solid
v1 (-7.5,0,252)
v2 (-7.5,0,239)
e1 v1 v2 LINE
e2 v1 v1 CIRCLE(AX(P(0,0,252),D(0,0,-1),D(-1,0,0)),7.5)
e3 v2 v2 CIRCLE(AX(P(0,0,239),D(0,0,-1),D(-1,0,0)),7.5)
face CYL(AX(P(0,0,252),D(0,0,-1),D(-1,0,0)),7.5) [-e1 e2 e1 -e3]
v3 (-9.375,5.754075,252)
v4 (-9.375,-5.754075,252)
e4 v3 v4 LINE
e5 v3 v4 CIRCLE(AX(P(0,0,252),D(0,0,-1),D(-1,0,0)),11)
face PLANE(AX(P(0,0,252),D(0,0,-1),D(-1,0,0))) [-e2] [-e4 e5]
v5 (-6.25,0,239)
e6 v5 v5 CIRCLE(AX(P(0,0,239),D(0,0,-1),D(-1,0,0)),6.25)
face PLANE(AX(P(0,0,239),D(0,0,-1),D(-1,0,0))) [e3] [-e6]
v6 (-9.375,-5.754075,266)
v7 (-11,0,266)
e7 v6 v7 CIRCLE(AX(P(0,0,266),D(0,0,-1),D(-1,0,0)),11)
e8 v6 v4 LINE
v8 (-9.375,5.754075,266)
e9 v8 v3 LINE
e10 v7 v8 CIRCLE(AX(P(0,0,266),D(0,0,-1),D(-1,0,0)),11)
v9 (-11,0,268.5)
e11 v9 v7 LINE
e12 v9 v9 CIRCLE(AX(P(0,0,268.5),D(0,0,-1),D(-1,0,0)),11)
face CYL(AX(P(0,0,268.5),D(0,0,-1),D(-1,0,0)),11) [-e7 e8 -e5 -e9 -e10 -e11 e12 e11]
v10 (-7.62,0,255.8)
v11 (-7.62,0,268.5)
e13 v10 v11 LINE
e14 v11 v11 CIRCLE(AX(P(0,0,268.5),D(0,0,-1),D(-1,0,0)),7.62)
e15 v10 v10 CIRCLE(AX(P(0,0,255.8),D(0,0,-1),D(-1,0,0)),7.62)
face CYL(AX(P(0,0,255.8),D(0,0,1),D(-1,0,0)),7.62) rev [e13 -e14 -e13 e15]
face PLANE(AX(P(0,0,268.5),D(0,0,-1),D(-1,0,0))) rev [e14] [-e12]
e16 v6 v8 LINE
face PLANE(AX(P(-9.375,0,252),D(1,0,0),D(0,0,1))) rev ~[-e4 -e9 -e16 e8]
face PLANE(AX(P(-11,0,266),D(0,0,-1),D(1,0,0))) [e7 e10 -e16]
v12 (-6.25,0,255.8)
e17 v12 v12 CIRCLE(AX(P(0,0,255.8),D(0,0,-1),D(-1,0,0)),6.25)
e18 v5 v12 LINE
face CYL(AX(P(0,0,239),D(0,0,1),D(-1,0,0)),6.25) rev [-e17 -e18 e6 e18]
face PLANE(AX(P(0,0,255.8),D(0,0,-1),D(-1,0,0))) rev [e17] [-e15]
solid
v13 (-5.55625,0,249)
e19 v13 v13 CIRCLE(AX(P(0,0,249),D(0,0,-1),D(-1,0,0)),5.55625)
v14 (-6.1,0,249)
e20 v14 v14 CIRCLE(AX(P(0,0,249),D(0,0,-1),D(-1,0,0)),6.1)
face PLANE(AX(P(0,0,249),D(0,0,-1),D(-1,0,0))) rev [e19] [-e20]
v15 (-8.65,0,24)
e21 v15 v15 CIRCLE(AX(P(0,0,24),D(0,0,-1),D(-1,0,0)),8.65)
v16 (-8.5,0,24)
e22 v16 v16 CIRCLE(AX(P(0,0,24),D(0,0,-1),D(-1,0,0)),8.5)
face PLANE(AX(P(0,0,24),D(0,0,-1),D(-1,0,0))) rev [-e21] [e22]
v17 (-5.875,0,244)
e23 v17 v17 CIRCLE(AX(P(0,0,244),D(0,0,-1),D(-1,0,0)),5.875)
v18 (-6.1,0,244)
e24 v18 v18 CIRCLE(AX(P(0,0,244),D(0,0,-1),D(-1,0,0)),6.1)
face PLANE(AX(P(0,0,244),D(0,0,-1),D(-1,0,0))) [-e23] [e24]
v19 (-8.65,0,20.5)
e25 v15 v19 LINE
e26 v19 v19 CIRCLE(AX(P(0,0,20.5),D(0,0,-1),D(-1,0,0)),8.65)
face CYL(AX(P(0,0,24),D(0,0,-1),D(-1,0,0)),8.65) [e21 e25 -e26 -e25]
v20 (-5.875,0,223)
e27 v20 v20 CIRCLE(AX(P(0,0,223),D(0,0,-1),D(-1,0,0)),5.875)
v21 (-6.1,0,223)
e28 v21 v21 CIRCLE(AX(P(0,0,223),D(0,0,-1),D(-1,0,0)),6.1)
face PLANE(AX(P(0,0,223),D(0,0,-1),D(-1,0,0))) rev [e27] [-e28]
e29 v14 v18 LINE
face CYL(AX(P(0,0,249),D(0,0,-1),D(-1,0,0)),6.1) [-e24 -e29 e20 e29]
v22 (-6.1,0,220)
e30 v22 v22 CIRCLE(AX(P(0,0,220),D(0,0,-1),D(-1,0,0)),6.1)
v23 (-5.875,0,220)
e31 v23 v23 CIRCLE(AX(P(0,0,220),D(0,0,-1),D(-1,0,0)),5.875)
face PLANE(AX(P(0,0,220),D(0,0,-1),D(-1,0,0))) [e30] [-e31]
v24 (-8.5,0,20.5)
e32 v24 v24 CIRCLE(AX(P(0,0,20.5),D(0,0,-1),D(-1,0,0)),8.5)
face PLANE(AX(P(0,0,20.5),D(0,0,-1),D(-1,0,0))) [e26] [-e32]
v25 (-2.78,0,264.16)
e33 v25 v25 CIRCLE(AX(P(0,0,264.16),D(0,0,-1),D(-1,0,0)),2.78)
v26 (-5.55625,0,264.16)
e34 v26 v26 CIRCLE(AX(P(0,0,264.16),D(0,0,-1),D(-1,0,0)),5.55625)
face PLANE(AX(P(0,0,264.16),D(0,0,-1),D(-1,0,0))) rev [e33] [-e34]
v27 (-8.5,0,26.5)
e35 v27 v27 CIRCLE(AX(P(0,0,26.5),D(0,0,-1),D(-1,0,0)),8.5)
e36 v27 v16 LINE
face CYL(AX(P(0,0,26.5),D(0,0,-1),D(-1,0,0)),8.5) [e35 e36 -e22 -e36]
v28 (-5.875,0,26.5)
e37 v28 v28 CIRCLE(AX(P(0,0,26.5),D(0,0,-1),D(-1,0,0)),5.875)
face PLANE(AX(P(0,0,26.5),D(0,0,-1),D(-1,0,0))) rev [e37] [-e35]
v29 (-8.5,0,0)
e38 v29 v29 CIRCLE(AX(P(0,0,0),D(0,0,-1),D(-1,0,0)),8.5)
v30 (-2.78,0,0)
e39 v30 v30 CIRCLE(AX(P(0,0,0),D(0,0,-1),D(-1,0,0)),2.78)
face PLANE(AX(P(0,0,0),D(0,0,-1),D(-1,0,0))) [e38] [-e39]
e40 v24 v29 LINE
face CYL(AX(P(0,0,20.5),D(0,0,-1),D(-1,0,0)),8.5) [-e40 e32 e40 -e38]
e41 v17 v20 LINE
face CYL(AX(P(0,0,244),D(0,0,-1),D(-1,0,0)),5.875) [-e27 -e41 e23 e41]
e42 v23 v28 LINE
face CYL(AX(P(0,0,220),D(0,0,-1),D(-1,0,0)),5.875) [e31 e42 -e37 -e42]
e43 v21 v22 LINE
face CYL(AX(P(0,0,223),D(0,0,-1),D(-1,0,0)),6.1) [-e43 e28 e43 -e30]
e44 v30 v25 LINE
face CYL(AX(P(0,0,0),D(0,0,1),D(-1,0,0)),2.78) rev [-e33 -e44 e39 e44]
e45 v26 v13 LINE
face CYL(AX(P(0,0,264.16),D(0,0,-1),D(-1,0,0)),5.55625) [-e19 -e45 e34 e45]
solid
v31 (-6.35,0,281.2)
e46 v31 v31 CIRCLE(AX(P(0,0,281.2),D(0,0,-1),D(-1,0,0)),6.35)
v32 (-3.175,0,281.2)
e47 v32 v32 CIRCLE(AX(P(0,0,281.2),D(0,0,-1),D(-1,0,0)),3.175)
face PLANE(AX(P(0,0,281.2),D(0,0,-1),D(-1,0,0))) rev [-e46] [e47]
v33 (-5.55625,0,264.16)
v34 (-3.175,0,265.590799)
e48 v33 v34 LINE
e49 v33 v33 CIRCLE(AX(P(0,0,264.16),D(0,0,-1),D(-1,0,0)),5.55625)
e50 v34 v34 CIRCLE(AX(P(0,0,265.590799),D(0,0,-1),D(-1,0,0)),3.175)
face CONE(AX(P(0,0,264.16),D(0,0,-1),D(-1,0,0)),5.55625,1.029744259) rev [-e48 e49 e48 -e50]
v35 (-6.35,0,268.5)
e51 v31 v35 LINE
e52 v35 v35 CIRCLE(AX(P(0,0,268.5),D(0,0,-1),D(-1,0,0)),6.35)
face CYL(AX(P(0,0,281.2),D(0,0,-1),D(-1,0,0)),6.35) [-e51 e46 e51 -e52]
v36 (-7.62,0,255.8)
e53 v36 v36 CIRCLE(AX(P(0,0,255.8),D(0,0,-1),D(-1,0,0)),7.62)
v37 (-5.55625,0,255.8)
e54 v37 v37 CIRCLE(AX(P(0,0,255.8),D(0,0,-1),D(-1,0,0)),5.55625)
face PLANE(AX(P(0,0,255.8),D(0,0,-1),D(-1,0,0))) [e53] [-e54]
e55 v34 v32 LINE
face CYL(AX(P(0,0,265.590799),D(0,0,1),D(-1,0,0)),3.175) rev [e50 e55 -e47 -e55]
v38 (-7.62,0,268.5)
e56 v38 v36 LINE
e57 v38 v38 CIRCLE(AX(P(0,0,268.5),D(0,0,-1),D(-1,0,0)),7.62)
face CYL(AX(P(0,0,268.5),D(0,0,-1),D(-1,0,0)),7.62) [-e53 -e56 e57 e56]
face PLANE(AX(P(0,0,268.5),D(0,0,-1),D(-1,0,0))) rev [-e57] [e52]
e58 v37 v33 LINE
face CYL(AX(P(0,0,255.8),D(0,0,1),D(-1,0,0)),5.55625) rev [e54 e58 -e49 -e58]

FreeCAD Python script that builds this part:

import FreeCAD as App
import Part
import Sketcher
Q = App.Units.Quantity


def add_polygon(sketch, points):
    """Adds a closed chain of lines whose ends are joined by coincident constraints."""
    first, n = sketch.GeometryCount, len(points)
    for a, b in zip(points, points[1:] + points[:1]):
        sketch.addGeometry(Part.LineSegment(App.Vector(*a, 0), App.Vector(*b, 0)), False)
    for i in range(n):
        sketch.addConstraint(Sketcher.Constraint("Coincident", first + i, 2, first + (i + 1) % n, 1))

doc = App.newDocument("Part")
body = doc.addObject("PartDesign::Body", "Body")

sketch1 = doc.addObject("Sketcher::SketchObject", "Sketch")
body.addObject(sketch1)
sketch1.AttachmentSupport = (doc.XZ_Plane, [""])
sketch1.MapMode = "FlatFace"
add_polygon(sketch1, [(-8.5, 0), (-2.78, 0), (-2.78, 264.16), (-5.56, 264.16), (-5.56, 249), (-6.1, 249), (-6.1, 244), (-5.88, 244), (-5.88, 223), (-6.1, 223), (-6.1, 220), (-5.88, 220), (-5.88, 26.5), (-8.5, 26.5), (-8.5, 24), (-8.65, 24), (-8.65, 20.5), (-8.5, 20.5)])
sketch1.addConstraint([
    Sketcher.Constraint("Horizontal", 0),
    Sketcher.Constraint("Vertical", 1),
    Sketcher.Constraint("Horizontal", 2),
    Sketcher.Constraint("Vertical", 3),
    Sketcher.Constraint("Horizontal", 4),
    Sketcher.Constraint("Vertical", 5),
    Sketcher.Constraint("Horizontal", 6),
    Sketcher.Constraint("Vertical", 7),
    Sketcher.Constraint("Horizontal", 8),
    Sketcher.Constraint("Vertical", 9),
    Sketcher.Constraint("Horizontal", 10),
    Sketcher.Constraint("Vertical", 11),
    Sketcher.Constraint("Horizontal", 12),
    Sketcher.Constraint("Vertical", 13),
    Sketcher.Constraint("Horizontal", 14),
    Sketcher.Constraint("Vertical", 15),
    Sketcher.Constraint("Horizontal", 16),
    Sketcher.Constraint("Vertical", 17),
    Sketcher.Constraint("PointOnObject", 0, 2, -1),
    Sketcher.Constraint("Vertical", 5, 2, 8, 2),
    Sketcher.Constraint("Vertical", 7, 2, 10, 2),
    Sketcher.Constraint("Vertical", 13, 2, 16, 2),
    Sketcher.Constraint("DistanceY", 5, 2, 5, 1, 5.0),
    Sketcher.Constraint("DistanceY", 7, 2, 7, 1, 21.0),
    Sketcher.Constraint("DistanceY", 9, 2, 9, 1, 3.0),
    Sketcher.Constraint("DistanceY", 11, 2, 11, 1, 193.5),
    Sketcher.Constraint("DistanceY", 13, 2, 13, 1, 2.5),
    Sketcher.Constraint("DistanceY", 15, 2, 15, 1, 3.5),
    Sketcher.Constraint("DistanceY", 17, 2, 17, 1, 20.5),
    Sketcher.Constraint("DistanceX", 0, 1, 0, 2, 5.72),
    Sketcher.Constraint("DistanceX", 14, 2, 14, 1, 0.15),
    Sketcher.Constraint("DistanceY", 1, 1, 1, 2, 264.16),
    Sketcher.Constraint("DistanceX", 4, 2, -1, 1, 6.1),
    Sketcher.Constraint("DistanceX", 12, 2, -1, 1, 8.5),
    Sketcher.Constraint("DistanceX", 6, 1, 6, 2, 0.225),
    Sketcher.Constraint("DistanceX", 2, 2, 2, 1, 2.77625),
])
revolution = doc.addObject("PartDesign::Revolution", "Revolution")
body.addObject(revolution)
revolution.Profile = sketch1
revolution.ReferenceAxis = (sketch1, ["V_Axis"])
revolution.Angle = 360
body2 = doc.addObject("PartDesign::Body", "Body001")

sketch2 = doc.addObject("Sketcher::SketchObject", "Sketch001")
body2.addObject(sketch2)
sketch2.AttachmentSupport = (doc.getObject("XZ_Plane001"), [""])
sketch2.MapMode = "FlatFace"
add_polygon(sketch2, [(-11, 252), (-7.5, 252), (-7.5, 239), (-6.2, 239), (-6.2, 255.8), (-7.6, 255.8), (-7.6, 268.5), (-11, 268.5)])
sketch2.addConstraint([
    Sketcher.Constraint("Horizontal", 0),
    Sketcher.Constraint("Vertical", 1),
    Sketcher.Constraint("Horizontal", 2),
    Sketcher.Constraint("Vertical", 3),
    Sketcher.Constraint("Horizontal", 4),
    Sketcher.Constraint("Vertical", 5),
    Sketcher.Constraint("Horizontal", 6),
    Sketcher.Constraint("Vertical", 7),
    Sketcher.Constraint("DistanceY", 1, 2, 1, 1, 13.0),
    Sketcher.Constraint("DistanceX", 0, 1, 0, 2, 3.5),
    Sketcher.Constraint("DistanceY", 3, 1, 3, 2, 16.8),
    Sketcher.Constraint("DistanceY", 5, 1, 5, 2, 12.7),
    Sketcher.Constraint("DistanceY", -1, 1, 0, 2, 252.0),
    Sketcher.Constraint("DistanceX", 6, 2, -1, 1, 11.0),
    Sketcher.Constraint("DistanceX", 2, 1, 2, 2, 1.25),
    Sketcher.Constraint("DistanceX", 4, 2, 4, 1, 1.37),
])
revolution2 = doc.addObject("PartDesign::Revolution", "Revolution001")
body2.addObject(revolution2)
revolution2.Profile = sketch2
revolution2.ReferenceAxis = (sketch2, ["V_Axis"])
revolution2.Angle = 360

sketch3 = doc.addObject("Sketcher::SketchObject", "Sketch002")
body2.addObject(sketch3)
sketch3.AttachmentSupport = (doc.getObject("XZ_Plane001"), [""])
sketch3.MapMode = "FlatFace"
add_polygon(sketch3, [(-11, 266), (-11, 252), (-9.4, 252), (-9.4, 266)])
sketch3.addConstraint([
    Sketcher.Constraint("Vertical", 0),
    Sketcher.Constraint("Horizontal", 1),
    Sketcher.Constraint("Vertical", 2),
    Sketcher.Constraint("Horizontal", 3),
    Sketcher.Constraint("DistanceY", 0, 2, 0, 1, 14.0),
    Sketcher.Constraint("DistanceX", 0, 2, -1, 1, 11.0),
    Sketcher.Constraint("DistanceY", -1, 1, 0, 2, 252.0),
    Sketcher.Constraint("DistanceX", 1, 1, 1, 2, 1.625),
])
pocket1 = doc.addObject("PartDesign::Pocket", "Pocket")
body2.addObject(pocket1)
pocket1.Profile = sketch3
pocket1.Length = 25.4
pocket1.Midplane = True
body3 = doc.addObject("PartDesign::Body", "Body002")

sketch4 = doc.addObject("Sketcher::SketchObject", "Sketch003")
body3.addObject(sketch4)
sketch4.AttachmentSupport = (doc.getObject("XZ_Plane002"), [""])
sketch4.MapMode = "FlatFace"
add_polygon(sketch4, [(-7.6, 255.8), (-5.6, 255.8), (-5.6, 264.2), (-3.2, 265.6), (-3.2, 281.2), (-6.3, 281.2), (-6.3, 268.5), (-7.6, 268.5)])
sketch4.addConstraint([
    Sketcher.Constraint("Horizontal", 0),
    Sketcher.Constraint("Vertical", 1),
    Sketcher.Constraint("Vertical", 3),
    Sketcher.Constraint("Horizontal", 4),
    Sketcher.Constraint("Vertical", 5),
    Sketcher.Constraint("Horizontal", 6),
    Sketcher.Constraint("Vertical", 7),
    Sketcher.Constraint("Equal", 5, 7),
    Sketcher.Constraint("Angle", 2, Q("31 deg")),
    Sketcher.Constraint("DistanceY", 5, 2, 5, 1, 12.7),
    Sketcher.Constraint("DistanceX", 6, 2, 6, 1, 1.27),
    Sketcher.Constraint("DistanceY", 1, 1, 1, 2, 8.36),
    Sketcher.Constraint("DistanceY", -1, 1, 0, 2, 255.8),
    Sketcher.Constraint("DistanceX", 4, 2, 4, 1, 3.175),
    Sketcher.Constraint("DistanceX", 4, 2, -1, 1, 6.35),
    Sketcher.Constraint("DistanceY", 3, 1, 3, 2, 15.609201),
])
revolution3 = doc.addObject("PartDesign::Revolution", "Revolution002")
body3.addObject(revolution3)
revolution3.Profile = sketch4
revolution3.ReferenceAxis = (sketch4, ["V_Axis"])
revolution3.Angle = 360

doc.recompute()
